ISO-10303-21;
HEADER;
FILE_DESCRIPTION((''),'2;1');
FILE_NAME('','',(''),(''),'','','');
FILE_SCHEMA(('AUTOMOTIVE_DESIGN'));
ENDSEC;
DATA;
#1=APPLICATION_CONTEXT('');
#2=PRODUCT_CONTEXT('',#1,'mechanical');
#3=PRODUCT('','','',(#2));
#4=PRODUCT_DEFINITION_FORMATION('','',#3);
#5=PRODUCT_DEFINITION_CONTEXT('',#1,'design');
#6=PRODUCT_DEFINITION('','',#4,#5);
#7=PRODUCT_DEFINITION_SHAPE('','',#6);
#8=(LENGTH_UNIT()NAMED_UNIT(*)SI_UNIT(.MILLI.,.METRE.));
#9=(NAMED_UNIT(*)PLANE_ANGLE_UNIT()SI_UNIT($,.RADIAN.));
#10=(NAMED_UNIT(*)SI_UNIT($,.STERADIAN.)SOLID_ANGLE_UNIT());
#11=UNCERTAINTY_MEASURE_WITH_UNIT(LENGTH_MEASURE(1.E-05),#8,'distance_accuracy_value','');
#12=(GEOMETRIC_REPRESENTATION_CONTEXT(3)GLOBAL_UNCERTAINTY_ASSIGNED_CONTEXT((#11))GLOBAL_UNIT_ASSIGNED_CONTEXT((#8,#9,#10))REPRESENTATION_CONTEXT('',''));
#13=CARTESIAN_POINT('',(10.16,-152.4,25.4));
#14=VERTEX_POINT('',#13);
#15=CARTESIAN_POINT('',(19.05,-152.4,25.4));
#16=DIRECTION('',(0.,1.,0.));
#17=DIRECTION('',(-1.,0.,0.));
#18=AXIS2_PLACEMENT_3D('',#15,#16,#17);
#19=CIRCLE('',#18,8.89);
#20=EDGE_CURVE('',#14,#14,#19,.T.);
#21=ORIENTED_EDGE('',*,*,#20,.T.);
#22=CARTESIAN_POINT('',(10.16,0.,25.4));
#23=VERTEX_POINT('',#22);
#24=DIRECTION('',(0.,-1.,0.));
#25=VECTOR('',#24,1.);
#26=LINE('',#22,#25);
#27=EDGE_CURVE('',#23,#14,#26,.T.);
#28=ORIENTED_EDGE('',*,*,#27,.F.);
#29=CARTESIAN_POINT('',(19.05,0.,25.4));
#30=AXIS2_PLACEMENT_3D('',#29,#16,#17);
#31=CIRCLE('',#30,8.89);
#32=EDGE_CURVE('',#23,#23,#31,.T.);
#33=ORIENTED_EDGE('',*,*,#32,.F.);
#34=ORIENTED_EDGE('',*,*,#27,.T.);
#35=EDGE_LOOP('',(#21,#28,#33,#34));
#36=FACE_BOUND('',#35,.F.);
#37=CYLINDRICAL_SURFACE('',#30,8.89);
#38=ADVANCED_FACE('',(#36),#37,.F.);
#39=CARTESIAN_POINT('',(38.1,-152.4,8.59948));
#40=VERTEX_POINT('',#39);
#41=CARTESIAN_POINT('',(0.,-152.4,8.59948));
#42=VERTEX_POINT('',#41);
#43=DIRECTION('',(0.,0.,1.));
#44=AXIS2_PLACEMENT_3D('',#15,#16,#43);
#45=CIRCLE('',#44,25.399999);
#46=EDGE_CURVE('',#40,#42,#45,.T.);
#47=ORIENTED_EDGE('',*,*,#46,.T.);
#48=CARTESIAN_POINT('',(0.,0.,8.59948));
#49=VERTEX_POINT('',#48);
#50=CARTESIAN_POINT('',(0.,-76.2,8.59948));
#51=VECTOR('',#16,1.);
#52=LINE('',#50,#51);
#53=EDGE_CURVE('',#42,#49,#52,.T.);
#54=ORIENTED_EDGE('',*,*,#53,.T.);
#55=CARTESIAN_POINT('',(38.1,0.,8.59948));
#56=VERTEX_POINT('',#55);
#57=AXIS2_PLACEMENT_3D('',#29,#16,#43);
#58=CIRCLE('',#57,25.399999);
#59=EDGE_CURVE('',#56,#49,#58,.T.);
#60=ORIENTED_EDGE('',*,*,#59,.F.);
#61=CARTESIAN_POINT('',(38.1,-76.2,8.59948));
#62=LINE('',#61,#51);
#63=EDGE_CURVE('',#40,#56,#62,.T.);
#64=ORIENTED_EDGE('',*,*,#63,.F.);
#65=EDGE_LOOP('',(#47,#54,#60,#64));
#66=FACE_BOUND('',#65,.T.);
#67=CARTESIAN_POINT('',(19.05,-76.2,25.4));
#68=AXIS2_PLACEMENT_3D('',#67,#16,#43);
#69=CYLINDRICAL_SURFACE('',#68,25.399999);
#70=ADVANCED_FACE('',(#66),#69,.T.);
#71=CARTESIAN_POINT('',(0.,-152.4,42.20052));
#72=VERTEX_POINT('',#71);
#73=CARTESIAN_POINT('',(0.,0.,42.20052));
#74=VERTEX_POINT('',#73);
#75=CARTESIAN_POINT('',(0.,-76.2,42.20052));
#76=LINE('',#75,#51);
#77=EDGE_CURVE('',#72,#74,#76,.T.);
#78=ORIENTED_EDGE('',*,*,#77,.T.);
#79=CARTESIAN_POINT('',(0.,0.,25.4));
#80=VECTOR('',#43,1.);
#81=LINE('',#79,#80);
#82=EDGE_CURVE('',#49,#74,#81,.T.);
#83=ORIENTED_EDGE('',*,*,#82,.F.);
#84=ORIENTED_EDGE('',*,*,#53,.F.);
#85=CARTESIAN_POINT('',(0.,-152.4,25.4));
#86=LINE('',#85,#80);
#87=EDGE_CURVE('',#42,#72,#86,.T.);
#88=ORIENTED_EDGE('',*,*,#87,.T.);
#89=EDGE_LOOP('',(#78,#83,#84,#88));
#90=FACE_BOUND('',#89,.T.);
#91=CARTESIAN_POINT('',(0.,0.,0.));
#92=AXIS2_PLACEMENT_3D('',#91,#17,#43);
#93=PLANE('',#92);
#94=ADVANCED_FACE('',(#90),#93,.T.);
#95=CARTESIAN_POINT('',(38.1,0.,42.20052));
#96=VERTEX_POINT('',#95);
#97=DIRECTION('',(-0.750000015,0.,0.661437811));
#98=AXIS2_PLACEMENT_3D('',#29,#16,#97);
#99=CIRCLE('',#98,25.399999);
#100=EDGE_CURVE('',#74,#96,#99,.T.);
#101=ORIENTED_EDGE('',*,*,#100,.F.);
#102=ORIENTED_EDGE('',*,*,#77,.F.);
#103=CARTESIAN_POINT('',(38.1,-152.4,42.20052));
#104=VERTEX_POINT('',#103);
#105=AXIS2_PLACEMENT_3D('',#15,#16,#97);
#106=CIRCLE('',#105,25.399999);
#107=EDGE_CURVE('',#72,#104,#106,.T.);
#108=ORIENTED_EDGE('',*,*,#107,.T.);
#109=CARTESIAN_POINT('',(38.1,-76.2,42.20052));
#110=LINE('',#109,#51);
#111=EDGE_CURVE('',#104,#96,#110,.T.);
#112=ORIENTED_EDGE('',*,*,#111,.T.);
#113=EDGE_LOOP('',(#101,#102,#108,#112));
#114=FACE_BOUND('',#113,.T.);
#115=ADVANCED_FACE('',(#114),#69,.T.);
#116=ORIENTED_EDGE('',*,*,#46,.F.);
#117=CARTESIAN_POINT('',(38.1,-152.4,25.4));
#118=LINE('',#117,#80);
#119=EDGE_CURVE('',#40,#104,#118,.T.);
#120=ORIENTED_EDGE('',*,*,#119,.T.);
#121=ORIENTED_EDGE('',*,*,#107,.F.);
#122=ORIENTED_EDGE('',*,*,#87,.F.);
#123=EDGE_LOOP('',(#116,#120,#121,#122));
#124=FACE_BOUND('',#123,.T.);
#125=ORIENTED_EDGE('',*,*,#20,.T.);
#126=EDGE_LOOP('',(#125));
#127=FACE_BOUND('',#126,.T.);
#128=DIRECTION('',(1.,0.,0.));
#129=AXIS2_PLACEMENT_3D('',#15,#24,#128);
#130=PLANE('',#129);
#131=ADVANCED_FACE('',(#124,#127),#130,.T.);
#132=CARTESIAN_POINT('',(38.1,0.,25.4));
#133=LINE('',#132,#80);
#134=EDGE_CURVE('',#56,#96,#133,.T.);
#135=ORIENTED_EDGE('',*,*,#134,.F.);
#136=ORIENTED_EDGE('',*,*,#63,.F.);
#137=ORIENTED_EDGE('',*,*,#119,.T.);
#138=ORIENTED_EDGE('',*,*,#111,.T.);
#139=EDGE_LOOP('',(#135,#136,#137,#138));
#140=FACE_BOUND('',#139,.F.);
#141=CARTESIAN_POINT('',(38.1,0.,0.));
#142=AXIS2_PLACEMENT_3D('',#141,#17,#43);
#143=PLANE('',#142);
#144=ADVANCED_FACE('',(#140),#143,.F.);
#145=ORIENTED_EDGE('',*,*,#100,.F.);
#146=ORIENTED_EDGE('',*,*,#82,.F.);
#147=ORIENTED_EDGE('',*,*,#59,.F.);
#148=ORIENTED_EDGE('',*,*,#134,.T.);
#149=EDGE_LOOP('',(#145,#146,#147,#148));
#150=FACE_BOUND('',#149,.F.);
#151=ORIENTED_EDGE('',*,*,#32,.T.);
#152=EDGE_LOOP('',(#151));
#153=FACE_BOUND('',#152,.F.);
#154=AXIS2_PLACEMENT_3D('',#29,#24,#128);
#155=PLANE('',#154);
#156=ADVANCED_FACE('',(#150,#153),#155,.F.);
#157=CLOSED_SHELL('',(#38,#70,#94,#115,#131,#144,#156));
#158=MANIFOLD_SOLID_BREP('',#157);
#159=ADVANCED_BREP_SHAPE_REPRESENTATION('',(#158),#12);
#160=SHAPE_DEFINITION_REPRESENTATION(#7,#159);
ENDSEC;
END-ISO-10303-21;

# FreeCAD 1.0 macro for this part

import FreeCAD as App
import Part
import Sketcher
Q = App.Units.Quantity

doc = App.newDocument("Part")
body = doc.addObject("PartDesign::Body", "Body")

# Sketch on XZ plane
sketch1 = body.newObject("Sketcher::SketchObject", "Sketch")
sketch1.AttachmentSupport = (doc.getObject("XZ_Plane"), [""])
sketch1.MapMode = "FlatFace"
sketch1.addGeometry([
    Part.LineSegment(App.Vector(0, 51, 0), App.Vector(0, 0, 0)),
    Part.LineSegment(App.Vector(0, 0, 0), App.Vector(38, 0, 0)),
    Part.LineSegment(App.Vector(38, 0, 0), App.Vector(38, 51, 0)),
    Part.LineSegment(App.Vector(38, 51, 0), App.Vector(0, 51, 0)),
], False)
sketch1.addConstraint([
    Sketcher.Constraint("Coincident", 0, 2, 1, 1),
    Sketcher.Constraint("Coincident", 1, 2, 2, 1),
    Sketcher.Constraint("Coincident", 2, 2, 3, 1),
    Sketcher.Constraint("Coincident", 3, 2, 0, 1),
    Sketcher.Constraint("Vertical", 0),
    Sketcher.Constraint("Horizontal", 1),
    Sketcher.Constraint("Vertical", 2),
    Sketcher.Constraint("Horizontal", 3),
    Sketcher.Constraint("Coincident", 0, 2, -1, 1),
    Sketcher.Constraint("DistanceY", 0, 2, 0, 1, Q("2 in")),
    Sketcher.Constraint("DistanceX", 1, 1, 1, 2, Q("1.5 in")),
])
pad1 = body.newObject("PartDesign::Pad", "Pad")
pad1.Profile = sketch1
pad1.Length = Q("6 in")

# Sketch on XZ plane
sketch2 = body.newObject("Sketcher::SketchObject", "Sketch001")
sketch2.AttachmentSupport = (doc.getObject("XZ_Plane"), [""])
sketch2.MapMode = "FlatFace"
sketch2.addGeometry(Part.Circle(App.Vector(19, 25, 0), App.Vector(0, 0, 1), 9), False)
sketch2.addConstraint([
    Sketcher.Constraint("Diameter", 0, Q("0.7 in")),
    Sketcher.Constraint("DistanceY", -1, 1, 0, 3, Q("1 in")),
    Sketcher.Constraint("DistanceX", -1, 1, 0, 3, Q("0.75 in")),
])
pocket1 = body.newObject("PartDesign::Pocket", "Pocket")
pocket1.Profile = sketch2
pocket1.Type = "ThroughAll"
pocket1.Reversed = True

# Sketch on YZ plane
sketch3 = body.newObject("Sketcher::SketchObject", "Sketch002")
sketch3.AttachmentSupport = (doc.getObject("YZ_Plane"), [""])
sketch3.MapMode = "FlatFace"
sketch3.AttachmentOffset = App.Placement(App.Vector(0, 0, 0.75 * 25.4), App.Rotation())
sketch3.addGeometry([
    Part.LineSegment(App.Vector(-152, 79, 0), App.Vector(-152, 51, 0)),
    Part.LineSegment(App.Vector(-152, 51, 0), App.Vector(0, 51, 0)),
    Part.LineSegment(App.Vector(0, 51, 0), App.Vector(0, 79, 0)),
    Part.LineSegment(App.Vector(0, 79, 0), App.Vector(-152, 79, 0)),
], False)
sketch3.addGeometry(Part.LineSegment(App.Vector(-152, 25, 0), App.Vector(0, 25, 0)), True)  # axis
sketch3.addConstraint([
    Sketcher.Constraint("Coincident", 0, 2, 1, 1),
    Sketcher.Constraint("Coincident", 1, 2, 2, 1),
    Sketcher.Constraint("Coincident", 2, 2, 3, 1),
    Sketcher.Constraint("Coincident", 3, 2, 0, 1),
    Sketcher.Constraint("Vertical", 0),
    Sketcher.Constraint("Horizontal", 1),
    Sketcher.Constraint("Vertical", 2),
    Sketcher.Constraint("Horizontal", 3),
    Sketcher.Constraint("Horizontal", 4),
    Sketcher.Constraint("PointOnObject", 1, 2, -2),
    Sketcher.Constraint("PointOnObject", 4, 2, -2),
    Sketcher.Constraint("Vertical", 3, 2, 4, 1),
    Sketcher.Constraint("DistanceX", 1, 1, 1, 2, Q("6 in")),
    Sketcher.Constraint("DistanceY", -1, 1, 0, 2, Q("2 in")),
    Sketcher.Constraint("DistanceY", -1, 1, 4, 1, Q("1 in")),
    Sketcher.Constraint("DistanceY", 0, 2, 0, 1, Q("28.410043 mm")),
])
groove = body.newObject("PartDesign::Groove", "Groove")
groove.Profile = sketch3
groove.ReferenceAxis = (sketch3, ["Axis0"])
groove.Angle = 360

doc.recompute()
